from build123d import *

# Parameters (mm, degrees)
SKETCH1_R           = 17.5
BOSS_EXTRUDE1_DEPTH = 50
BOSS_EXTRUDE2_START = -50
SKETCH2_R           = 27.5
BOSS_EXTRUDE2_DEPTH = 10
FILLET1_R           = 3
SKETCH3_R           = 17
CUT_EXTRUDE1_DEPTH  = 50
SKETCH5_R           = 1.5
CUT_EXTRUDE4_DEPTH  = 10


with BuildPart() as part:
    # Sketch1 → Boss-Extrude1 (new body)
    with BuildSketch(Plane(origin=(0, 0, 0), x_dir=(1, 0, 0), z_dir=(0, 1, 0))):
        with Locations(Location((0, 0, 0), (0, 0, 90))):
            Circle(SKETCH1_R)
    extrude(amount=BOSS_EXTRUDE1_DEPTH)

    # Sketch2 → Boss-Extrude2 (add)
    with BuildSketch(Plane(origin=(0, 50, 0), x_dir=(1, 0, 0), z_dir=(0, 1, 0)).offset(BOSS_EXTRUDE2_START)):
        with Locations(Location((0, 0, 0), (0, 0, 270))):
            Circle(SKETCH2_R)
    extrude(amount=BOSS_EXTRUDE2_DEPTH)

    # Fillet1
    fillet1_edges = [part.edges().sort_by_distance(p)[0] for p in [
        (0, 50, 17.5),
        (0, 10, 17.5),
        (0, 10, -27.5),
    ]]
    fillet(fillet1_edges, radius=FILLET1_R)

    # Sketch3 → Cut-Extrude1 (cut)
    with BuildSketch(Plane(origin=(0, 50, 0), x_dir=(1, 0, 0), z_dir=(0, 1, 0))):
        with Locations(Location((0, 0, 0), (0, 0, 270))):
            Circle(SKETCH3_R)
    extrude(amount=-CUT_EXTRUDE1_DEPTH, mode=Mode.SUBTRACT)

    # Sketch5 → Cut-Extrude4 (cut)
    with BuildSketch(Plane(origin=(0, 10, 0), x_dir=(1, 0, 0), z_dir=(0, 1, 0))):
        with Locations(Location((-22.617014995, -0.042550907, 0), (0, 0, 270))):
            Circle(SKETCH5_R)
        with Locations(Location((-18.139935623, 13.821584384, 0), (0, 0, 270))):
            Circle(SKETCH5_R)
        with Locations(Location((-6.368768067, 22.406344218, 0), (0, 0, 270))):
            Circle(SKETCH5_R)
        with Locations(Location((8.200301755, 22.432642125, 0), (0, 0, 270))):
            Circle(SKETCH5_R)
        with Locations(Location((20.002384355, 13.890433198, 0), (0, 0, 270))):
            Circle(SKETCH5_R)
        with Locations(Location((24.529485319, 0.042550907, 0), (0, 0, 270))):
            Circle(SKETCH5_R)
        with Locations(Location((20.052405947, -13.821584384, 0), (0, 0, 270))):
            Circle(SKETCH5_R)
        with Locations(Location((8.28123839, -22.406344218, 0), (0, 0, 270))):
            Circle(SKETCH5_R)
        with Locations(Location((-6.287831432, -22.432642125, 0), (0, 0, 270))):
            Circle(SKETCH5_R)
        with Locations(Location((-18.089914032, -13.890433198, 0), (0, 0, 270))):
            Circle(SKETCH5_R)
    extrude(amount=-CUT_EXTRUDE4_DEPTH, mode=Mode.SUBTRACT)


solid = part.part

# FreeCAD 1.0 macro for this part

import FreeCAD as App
import Part
import Sketcher

V = App.Vector


def edges_at(feature, points):
    """Names of the edges that pass closest to the given points."""
    edges = feature.Shape.Edges
    near = lambda p: min(range(len(edges)), key=lambda i: edges[i].distToShape(Part.Vertex(*p))[0])
    return sorted({f"Edge{near(p) + 1}" for p in points})

doc = App.newDocument("Part")
body = doc.addObject("PartDesign::Body", "Body")

sketch1 = body.newObject("Sketcher::SketchObject", "Sketch")
sketch1.AttachmentSupport = (doc.getObject("XZ_Plane"), [""])
sketch1.MapMode = "FlatFace"
sketch1.addGeometry(Part.Circle(V(0, 0, 0), V(0, 0, 1), 18), False)
sketch1.addConstraint([
    Sketcher.Constraint("Coincident", 0, 3, -1, 1),
    Sketcher.Constraint("Diameter", 0, 35.0),
])
pad1 = body.newObject("PartDesign::Pad", "Pad")
pad1.Profile = sketch1
pad1.Length = 50
pad1.Reversed = True

sketch2 = body.newObject("Sketcher::SketchObject", "Sketch001")
sketch2.AttachmentSupport = (doc.getObject("XZ_Plane"), [""])
sketch2.MapMode = "FlatFace"
sketch2.addGeometry(Part.Circle(V(0, 0, 0), V(0, 0, 1), 28), False)
sketch2.addConstraint([
    Sketcher.Constraint("Coincident", 0, 3, -1, 1),
    Sketcher.Constraint("Diameter", 0, 55.0),
])
pad2 = body.newObject("PartDesign::Pad", "Pad001")
pad2.Profile = sketch2
pad2.Length = 10
pad2.Reversed = True
doc.recompute()

fillet = body.newObject("PartDesign::Fillet", "Fillet")
fillet.Base = (pad2, edges_at(pad2, [(0, 50, 17.5), (0, 10, 17.5), (0, 10, -27.5)]))
fillet.Radius = 3

sketch3 = body.newObject("Sketcher::SketchObject", "Sketch002")
sketch3.AttachmentSupport = (doc.getObject("XZ_Plane"), [""])
sketch3.MapMode = "FlatFace"
sketch3.AttachmentOffset = App.Placement(V(0, 0, -50), App.Rotation())
sketch3.addGeometry(Part.Circle(V(0, 0, 0), V(0, 0, 1), 17), False)
sketch3.addConstraint([
    Sketcher.Constraint("Coincident", 0, 3, -1, 1),
    Sketcher.Constraint("Diameter", 0, 34.0),
])
pocket1 = body.newObject("PartDesign::Pocket", "Pocket")
pocket1.Profile = sketch3
pocket1.Length = 50
pocket1.Reversed = True

sketch4 = body.newObject("Sketcher::SketchObject", "Sketch003")
sketch4.AttachmentSupport = (doc.getObject("XZ_Plane"), [""])
sketch4.MapMode = "FlatFace"
sketch4.AttachmentOffset = App.Placement(V(0, 0, -10), App.Rotation())
sketch4.addGeometry([
    Part.Circle(V(-22.6, 0, 0), V(0, 0, 1), 1.5),
    Part.Circle(V(-18.1, -13.8, 0), V(0, 0, 1), 1.5),
    Part.Circle(V(-6.4, -22.4, 0), V(0, 0, 1), 1.5),
    Part.Circle(V(8.2, -22.4, 0), V(0, 0, 1), 1.5),
    Part.Circle(V(20, -13.9, 0), V(0, 0, 1), 1.5),
    Part.Circle(V(24.5, 0, 0), V(0, 0, 1), 1.5),
    Part.Circle(V(20.1, 13.8, 0), V(0, 0, 1), 1.5),
    Part.Circle(V(8.3, 22.4, 0), V(0, 0, 1), 1.5),
    Part.Circle(V(-6.3, 22.4, 0), V(0, 0, 1), 1.5),
    Part.Circle(V(-18.1, 13.9, 0), V(0, 0, 1), 1.5),
], False)
sketch4.addConstraint([
    Sketcher.Constraint("Equal", 0, 1),
    Sketcher.Constraint("Equal", 1, 2),
    Sketcher.Constraint("Equal", 2, 3),
    Sketcher.Constraint("Equal", 3, 4),
    Sketcher.Constraint("Equal", 4, 5),
    Sketcher.Constraint("Equal", 5, 6),
    Sketcher.Constraint("Equal", 6, 7),
    Sketcher.Constraint("Equal", 7, 8),
    Sketcher.Constraint("Equal", 8, 9),
    Sketcher.Constraint("Diameter", 0, 3.0),
    Sketcher.Constraint("DistanceX", -1, 1, 3, 3, 8.200302),
    Sketcher.Constraint("DistanceX", 0, 3, 4, 3, 42.619399),
    Sketcher.Constraint("DistanceX", 4, 3, 5, 3, 4.527101),
    Sketcher.Constraint("DistanceY", 5, 3, 0, 3, 0.085102),
    Sketcher.Constraint("DistanceX", 0, 3, 9, 3, 4.527101),
    Sketcher.Constraint("DistanceY", -1, 1, 0, 3, 0.042551),
    Sketcher.Constraint("DistanceX", 2, 3, -1, 1, 6.368768),
    Sketcher.Constraint("DistanceX", -1, 1, 7, 3, 8.281238),
    Sketcher.Constraint("DistanceX", 8, 3, -1, 1, 6.287831),
    Sketcher.Constraint("DistanceX", 0, 3, 1, 3, 4.477079),
    Sketcher.Constraint("DistanceY", 2, 3, 1, 3, 8.58476),
    Sketcher.Constraint("DistanceY", 3, 3, 4, 3, 8.542209),
    Sketcher.Constraint("DistanceY", 2, 3, 4, 3, 8.515911),
    Sketcher.Constraint("DistanceY", 3, 3, 5, 3, 22.390091),
    Sketcher.Constraint("DistanceX", 6, 3, 5, 3, 4.477079),
    Sketcher.Constraint("DistanceY", 2, 3, 6, 3, 36.227929),
    Sketcher.Constraint("DistanceY", 6, 3, 7, 3, 8.58476),
    Sketcher.Constraint("DistanceY", 0, 3, 8, 3, 22.390091),
    Sketcher.Constraint("DistanceY", 9, 3, 8, 3, 8.542209),
    Sketcher.Constraint("DistanceX", 0, 3, -1, 1, 22.617015),
])
pocket2 = body.newObject("PartDesign::Pocket", "Pocket001")
pocket2.Profile = sketch4
pocket2.Length = 10
pocket2.Reversed = True

doc.recompute()
